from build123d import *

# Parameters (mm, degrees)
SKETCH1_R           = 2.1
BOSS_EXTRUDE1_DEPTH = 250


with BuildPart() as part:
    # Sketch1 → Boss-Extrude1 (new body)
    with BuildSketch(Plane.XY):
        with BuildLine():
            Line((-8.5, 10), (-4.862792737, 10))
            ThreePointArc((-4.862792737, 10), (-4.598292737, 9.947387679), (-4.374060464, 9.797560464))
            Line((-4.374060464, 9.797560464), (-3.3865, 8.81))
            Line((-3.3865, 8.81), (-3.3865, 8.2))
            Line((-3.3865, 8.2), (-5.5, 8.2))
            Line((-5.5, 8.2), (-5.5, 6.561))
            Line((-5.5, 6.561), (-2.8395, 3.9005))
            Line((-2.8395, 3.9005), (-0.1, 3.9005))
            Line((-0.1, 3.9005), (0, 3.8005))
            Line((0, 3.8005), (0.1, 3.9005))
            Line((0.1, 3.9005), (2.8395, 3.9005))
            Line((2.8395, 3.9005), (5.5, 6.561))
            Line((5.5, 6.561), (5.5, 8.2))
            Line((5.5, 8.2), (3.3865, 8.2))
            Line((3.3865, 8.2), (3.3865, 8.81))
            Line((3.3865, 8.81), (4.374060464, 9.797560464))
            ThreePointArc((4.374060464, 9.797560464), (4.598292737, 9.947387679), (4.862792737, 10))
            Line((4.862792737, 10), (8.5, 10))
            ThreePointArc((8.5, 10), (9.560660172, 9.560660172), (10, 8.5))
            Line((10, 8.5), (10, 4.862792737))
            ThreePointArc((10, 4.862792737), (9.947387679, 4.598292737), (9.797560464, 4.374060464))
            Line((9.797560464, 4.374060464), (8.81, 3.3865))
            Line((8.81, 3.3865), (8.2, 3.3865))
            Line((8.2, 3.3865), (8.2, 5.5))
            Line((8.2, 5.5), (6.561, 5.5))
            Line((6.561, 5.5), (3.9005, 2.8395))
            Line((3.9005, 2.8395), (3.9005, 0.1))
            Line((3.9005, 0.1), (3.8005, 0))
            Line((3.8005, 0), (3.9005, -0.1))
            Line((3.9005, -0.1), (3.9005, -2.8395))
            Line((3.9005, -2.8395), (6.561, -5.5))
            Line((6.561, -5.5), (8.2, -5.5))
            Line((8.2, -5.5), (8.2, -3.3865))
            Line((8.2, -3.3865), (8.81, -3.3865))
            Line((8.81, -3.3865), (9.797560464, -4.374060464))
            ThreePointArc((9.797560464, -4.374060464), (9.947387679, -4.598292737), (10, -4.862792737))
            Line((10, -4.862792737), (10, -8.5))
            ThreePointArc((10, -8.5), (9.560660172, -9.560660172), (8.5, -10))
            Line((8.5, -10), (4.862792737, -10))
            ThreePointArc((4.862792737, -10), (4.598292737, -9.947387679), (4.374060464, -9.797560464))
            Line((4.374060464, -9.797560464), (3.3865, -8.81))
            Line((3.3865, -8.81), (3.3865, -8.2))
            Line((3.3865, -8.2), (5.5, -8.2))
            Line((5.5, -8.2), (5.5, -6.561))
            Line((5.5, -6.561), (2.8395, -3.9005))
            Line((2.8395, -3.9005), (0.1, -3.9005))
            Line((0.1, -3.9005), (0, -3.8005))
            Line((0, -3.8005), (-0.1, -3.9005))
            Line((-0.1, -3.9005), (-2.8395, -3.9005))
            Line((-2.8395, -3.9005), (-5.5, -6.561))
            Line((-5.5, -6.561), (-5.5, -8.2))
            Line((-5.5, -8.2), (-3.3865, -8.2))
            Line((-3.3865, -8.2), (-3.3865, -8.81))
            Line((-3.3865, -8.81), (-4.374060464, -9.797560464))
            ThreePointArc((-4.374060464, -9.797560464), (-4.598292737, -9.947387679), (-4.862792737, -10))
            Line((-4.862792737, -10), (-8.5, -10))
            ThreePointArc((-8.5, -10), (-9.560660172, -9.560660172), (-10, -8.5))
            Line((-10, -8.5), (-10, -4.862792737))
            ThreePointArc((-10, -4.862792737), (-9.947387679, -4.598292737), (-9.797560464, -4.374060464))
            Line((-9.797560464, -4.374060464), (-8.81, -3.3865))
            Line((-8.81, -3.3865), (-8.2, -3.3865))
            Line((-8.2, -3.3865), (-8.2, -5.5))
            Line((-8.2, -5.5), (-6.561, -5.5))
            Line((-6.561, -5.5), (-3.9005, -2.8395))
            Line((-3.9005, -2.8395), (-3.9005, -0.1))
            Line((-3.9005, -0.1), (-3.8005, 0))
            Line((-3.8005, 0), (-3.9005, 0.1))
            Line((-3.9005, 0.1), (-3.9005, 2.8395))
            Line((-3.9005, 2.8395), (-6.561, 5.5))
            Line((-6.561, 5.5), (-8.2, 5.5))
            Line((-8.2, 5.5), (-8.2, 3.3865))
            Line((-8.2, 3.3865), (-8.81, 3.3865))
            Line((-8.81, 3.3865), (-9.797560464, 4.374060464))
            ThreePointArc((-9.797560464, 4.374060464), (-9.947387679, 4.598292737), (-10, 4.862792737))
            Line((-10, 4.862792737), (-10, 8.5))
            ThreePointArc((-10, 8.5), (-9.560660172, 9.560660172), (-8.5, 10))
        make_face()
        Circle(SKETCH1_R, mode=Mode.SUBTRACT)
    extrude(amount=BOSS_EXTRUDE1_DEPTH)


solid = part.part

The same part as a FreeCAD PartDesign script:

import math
import FreeCAD as App
import Part
import Sketcher
Q = App.Units.Quantity

doc = App.newDocument("Part")
params = doc.addObject("Spreadsheet::Sheet", "Params")
for row, (alias, value) in enumerate([
    ("sketch1_diameter", "4.2 mm"),
    ("sketch1_radius", "1.5 mm"),
    ("sketch1_width", "0.61 mm"),
    ("pad1_length", "250 mm"),
], start=1):
    params.set(f"A{row}", alias)
    params.set(f"B{row}", "=" + value)
    params.setAlias(f"B{row}", alias)

body = doc.addObject("PartDesign::Body", "Body")

sketch1 = doc.addObject("Sketcher::SketchObject", "Sketch")
body.addObject(sketch1)
sketch1.AttachmentSupport = (doc.XY_Plane, [""])
sketch1.MapMode = "FlatFace"
sketch1.addGeometry([
    Part.LineSegment(App.Vector(-4.86, 10, 0), App.Vector(-8.5, 10, 0)),
    Part.ArcOfCircle(Part.Circle(App.Vector(-8.5, 8.5, 0), App.Vector(0, 0, 1), 1.5), math.radians(90), math.radians(180)),
    Part.LineSegment(App.Vector(-10, 8.5, 0), App.Vector(-10, 4.86, 0)),
    Part.ArcOfCircle(Part.Circle(App.Vector(-9.31, 4.86, 0), App.Vector(0, 0, 1), 0.69), math.radians(180), math.radians(225)),
    Part.LineSegment(App.Vector(-9.8, 4.37, 0), App.Vector(-8.81, 3.39, 0)),
    Part.LineSegment(App.Vector(-8.81, 3.39, 0), App.Vector(-8.2, 3.39, 0)),
    Part.LineSegment(App.Vector(-8.2, 3.39, 0), App.Vector(-8.2, 5.5, 0)),
    Part.LineSegment(App.Vector(-8.2, 5.5, 0), App.Vector(-6.56, 5.5, 0)),
    Part.LineSegment(App.Vector(-6.56, 5.5, 0), App.Vector(-3.9, 2.84, 0)),
    Part.LineSegment(App.Vector(-3.9, 2.84, 0), App.Vector(-3.9, 0.1, 0)),
    Part.LineSegment(App.Vector(-3.9, 0.1, 0), App.Vector(-3.8, 0, 0)),
    Part.LineSegment(App.Vector(-3.8, 0, 0), App.Vector(-3.9, -0.1, 0)),
    Part.LineSegment(App.Vector(-3.9, -0.1, 0), App.Vector(-3.9, -2.84, 0)),
    Part.LineSegment(App.Vector(-3.9, -2.84, 0), App.Vector(-6.56, -5.5, 0)),
    Part.LineSegment(App.Vector(-6.56, -5.5, 0), App.Vector(-8.2, -5.5, 0)),
    Part.LineSegment(App.Vector(-8.2, -5.5, 0), App.Vector(-8.2, -3.39, 0)),
    Part.LineSegment(App.Vector(-8.2, -3.39, 0), App.Vector(-8.81, -3.39, 0)),
    Part.LineSegment(App.Vector(-8.81, -3.39, 0), App.Vector(-9.8, -4.37, 0)),
    Part.ArcOfCircle(Part.Circle(App.Vector(-9.31, -4.86, 0), App.Vector(0, 0, 1), 0.69), math.radians(135), math.radians(180)),
    Part.LineSegment(App.Vector(-10, -4.86, 0), App.Vector(-10, -8.5, 0)),
    Part.ArcOfCircle(Part.Circle(App.Vector(-8.5, -8.5, 0), App.Vector(0, 0, 1), 1.5), math.radians(180), math.radians(270)),
    Part.LineSegment(App.Vector(-8.5, -10, 0), App.Vector(-4.86, -10, 0)),
    Part.ArcOfCircle(Part.Circle(App.Vector(-4.86, -9.31, 0), App.Vector(0, 0, 1), 0.69), math.radians(-90), math.radians(-45)),
    Part.LineSegment(App.Vector(-4.37, -9.8, 0), App.Vector(-3.39, -8.81, 0)),
    Part.LineSegment(App.Vector(-3.39, -8.81, 0), App.Vector(-3.39, -8.2, 0)),
    Part.LineSegment(App.Vector(-3.39, -8.2, 0), App.Vector(-5.5, -8.2, 0)),
    Part.LineSegment(App.Vector(-5.5, -8.2, 0), App.Vector(-5.5, -6.56, 0)),
    Part.LineSegment(App.Vector(-5.5, -6.56, 0), App.Vector(-2.84, -3.9, 0)),
    Part.LineSegment(App.Vector(-2.84, -3.9, 0), App.Vector(-0.1, -3.9, 0)),
    Part.LineSegment(App.Vector(-0.1, -3.9, 0), App.Vector(0, -3.8, 0)),
    Part.LineSegment(App.Vector(0, -3.8, 0), App.Vector(0.1, -3.9, 0)),
    Part.LineSegment(App.Vector(0.1, -3.9, 0), App.Vector(2.84, -3.9, 0)),
    Part.LineSegment(App.Vector(2.84, -3.9, 0), App.Vector(5.5, -6.56, 0)),
    Part.LineSegment(App.Vector(5.5, -6.56, 0), App.Vector(5.5, -8.2, 0)),
    Part.LineSegment(App.Vector(5.5, -8.2, 0), App.Vector(3.39, -8.2, 0)),
    Part.LineSegment(App.Vector(3.39, -8.2, 0), App.Vector(3.39, -8.81, 0)),
    Part.LineSegment(App.Vector(3.39, -8.81, 0), App.Vector(4.37, -9.8, 0)),
    Part.ArcOfCircle(Part.Circle(App.Vector(4.86, -9.31, 0), App.Vector(0, 0, 1), 0.69), math.radians(-135), math.radians(-90)),
    Part.LineSegment(App.Vector(4.86, -10, 0), App.Vector(8.5, -10, 0)),
    Part.ArcOfCircle(Part.Circle(App.Vector(8.5, -8.5, 0), App.Vector(0, 0, 1), 1.5), math.radians(-90), math.radians(0)),
    Part.LineSegment(App.Vector(10, -8.5, 0), App.Vector(10, -4.86, 0)),
    Part.ArcOfCircle(Part.Circle(App.Vector(9.31, -4.86, 0), App.Vector(0, 0, 1), 0.69), math.radians(0), math.radians(45)),
    Part.LineSegment(App.Vector(9.8, -4.37, 0), App.Vector(8.81, -3.39, 0)),
    Part.LineSegment(App.Vector(8.81, -3.39, 0), App.Vector(8.2, -3.39, 0)),
    Part.LineSegment(App.Vector(8.2, -3.39, 0), App.Vector(8.2, -5.5, 0)),
    Part.LineSegment(App.Vector(8.2, -5.5, 0), App.Vector(6.56, -5.5, 0)),
    Part.LineSegment(App.Vector(6.56, -5.5, 0), App.Vector(3.9, -2.84, 0)),
    Part.LineSegment(App.Vector(3.9, -2.84, 0), App.Vector(3.9, -0.1, 0)),
    Part.LineSegment(App.Vector(3.9, -0.1, 0), App.Vector(3.8, 0, 0)),
    Part.LineSegment(App.Vector(3.8, 0, 0), App.Vector(3.9, 0.1, 0)),
    Part.LineSegment(App.Vector(3.9, 0.1, 0), App.Vector(3.9, 2.84, 0)),
    Part.LineSegment(App.Vector(3.9, 2.84, 0), App.Vector(6.56, 5.5, 0)),
    Part.LineSegment(App.Vector(6.56, 5.5, 0), App.Vector(8.2, 5.5, 0)),
    Part.LineSegment(App.Vector(8.2, 5.5, 0), App.Vector(8.2, 3.39, 0)),
    Part.LineSegment(App.Vector(8.2, 3.39, 0), App.Vector(8.81, 3.39, 0)),
    Part.LineSegment(App.Vector(8.81, 3.39, 0), App.Vector(9.8, 4.37, 0)),
    Part.ArcOfCircle(Part.Circle(App.Vector(9.31, 4.86, 0), App.Vector(0, 0, 1), 0.69), math.radians(-45), math.radians(0)),
    Part.LineSegment(App.Vector(10, 4.86, 0), App.Vector(10, 8.5, 0)),
    Part.ArcOfCircle(Part.Circle(App.Vector(8.5, 8.5, 0), App.Vector(0, 0, 1), 1.5), math.radians(0), math.radians(90)),
    Part.LineSegment(App.Vector(8.5, 10, 0), App.Vector(4.86, 10, 0)),
    Part.ArcOfCircle(Part.Circle(App.Vector(4.86, 9.31, 0), App.Vector(0, 0, 1), 0.69), math.radians(90), math.radians(135)),
    Part.LineSegment(App.Vector(4.37, 9.8, 0), App.Vector(3.39, 8.81, 0)),
    Part.LineSegment(App.Vector(3.39, 8.81, 0), App.Vector(3.39, 8.2, 0)),
    Part.LineSegment(App.Vector(3.39, 8.2, 0), App.Vector(5.5, 8.2, 0)),
    Part.LineSegment(App.Vector(5.5, 8.2, 0), App.Vector(5.5, 6.56, 0)),
    Part.LineSegment(App.Vector(5.5, 6.56, 0), App.Vector(2.84, 3.9, 0)),
    Part.LineSegment(App.Vector(2.84, 3.9, 0), App.Vector(0.1, 3.9, 0)),
    Part.LineSegment(App.Vector(0.1, 3.9, 0), App.Vector(0, 3.8, 0)),
    Part.LineSegment(App.Vector(0, 3.8, 0), App.Vector(-0.1, 3.9, 0)),
    Part.LineSegment(App.Vector(-0.1, 3.9, 0), App.Vector(-2.84, 3.9, 0)),
    Part.LineSegment(App.Vector(-2.84, 3.9, 0), App.Vector(-5.5, 6.56, 0)),
    Part.LineSegment(App.Vector(-5.5, 6.56, 0), App.Vector(-5.5, 8.2, 0)),
    Part.LineSegment(App.Vector(-5.5, 8.2, 0), App.Vector(-3.39, 8.2, 0)),
    Part.LineSegment(App.Vector(-3.39, 8.2, 0), App.Vector(-3.39, 8.81, 0)),
    Part.LineSegment(App.Vector(-3.39, 8.81, 0), App.Vector(-4.37, 9.8, 0)),
    Part.ArcOfCircle(Part.Circle(App.Vector(-4.86, 9.31, 0), App.Vector(0, 0, 1), 0.69), math.radians(45), math.radians(90)),
    Part.Circle(App.Vector(0, 0, 0), App.Vector(0, 0, 1), 2.1),
], False)
sketch1.addConstraint([
    Sketcher.Constraint("Tangent", 0, 2, 1, 1),
    Sketcher.Constraint("Tangent", 1, 2, 2, 1),
    Sketcher.Constraint("Tangent", 2, 2, 3, 1),
    Sketcher.Constraint("Tangent", 3, 2, 4, 1),
    Sketcher.Constraint("Coincident", 4, 2, 5, 1),
    Sketcher.Constraint("Coincident", 5, 2, 6, 1),
    Sketcher.Constraint("Coincident", 6, 2, 7, 1),
    Sketcher.Constraint("Coincident", 7, 2, 8, 1),
    Sketcher.Constraint("Coincident", 8, 2, 9, 1),
    Sketcher.Constraint("Coincident", 9, 2, 10, 1),
    Sketcher.Constraint("Coincident", 10, 2, 11, 1),
    Sketcher.Constraint("Coincident", 11, 2, 12, 1),
    Sketcher.Constraint("Coincident", 12, 2, 13, 1),
    Sketcher.Constraint("Coincident", 13, 2, 14, 1),
    Sketcher.Constraint("Coincident", 14, 2, 15, 1),
    Sketcher.Constraint("Coincident", 15, 2, 16, 1),
    Sketcher.Constraint("Coincident", 16, 2, 17, 1),
    Sketcher.Constraint("Tangent", 17, 2, 18, 1),
    Sketcher.Constraint("Tangent", 18, 2, 19, 1),
    Sketcher.Constraint("Tangent", 19, 2, 20, 1),
    Sketcher.Constraint("Tangent", 20, 2, 21, 1),
    Sketcher.Constraint("Tangent", 21, 2, 22, 1),
    Sketcher.Constraint("Tangent", 22, 2, 23, 1),
    Sketcher.Constraint("Coincident", 23, 2, 24, 1),
    Sketcher.Constraint("Coincident", 24, 2, 25, 1),
    Sketcher.Constraint("Coincident", 25, 2, 26, 1),
    Sketcher.Constraint("Coincident", 26, 2, 27, 1),
    Sketcher.Constraint("Coincident", 27, 2, 28, 1),
    Sketcher.Constraint("Coincident", 28, 2, 29, 1),
    Sketcher.Constraint("Coincident", 29, 2, 30, 1),
    Sketcher.Constraint("Coincident", 30, 2, 31, 1),
    Sketcher.Constraint("Coincident", 31, 2, 32, 1),
    Sketcher.Constraint("Coincident", 32, 2, 33, 1),
    Sketcher.Constraint("Coincident", 33, 2, 34, 1),
    Sketcher.Constraint("Coincident", 34, 2, 35, 1),
    Sketcher.Constraint("Coincident", 35, 2, 36, 1),
    Sketcher.Constraint("Tangent", 36, 2, 37, 1),
    Sketcher.Constraint("Tangent", 37, 2, 38, 1),
    Sketcher.Constraint("Tangent", 38, 2, 39, 1),
    Sketcher.Constraint("Tangent", 39, 2, 40, 1),
    Sketcher.Constraint("Tangent", 40, 2, 41, 1),
    Sketcher.Constraint("Tangent", 41, 2, 42, 1),
    Sketcher.Constraint("Coincident", 42, 2, 43, 1),
    Sketcher.Constraint("Coincident", 43, 2, 44, 1),
    Sketcher.Constraint("Coincident", 44, 2, 45, 1),
    Sketcher.Constraint("Coincident", 45, 2, 46, 1),
    Sketcher.Constraint("Coincident", 46, 2, 47, 1),
    Sketcher.Constraint("Coincident", 47, 2, 48, 1),
    Sketcher.Constraint("Coincident", 48, 2, 49, 1),
    Sketcher.Constraint("Coincident", 49, 2, 50, 1),
    Sketcher.Constraint("Coincident", 50, 2, 51, 1),
    Sketcher.Constraint("Coincident", 51, 2, 52, 1),
    Sketcher.Constraint("Coincident", 52, 2, 53, 1),
    Sketcher.Constraint("Coincident", 53, 2, 54, 1),
    Sketcher.Constraint("Coincident", 54, 2, 55, 1),
    Sketcher.Constraint("Tangent", 55, 2, 56, 1),
    Sketcher.Constraint("Tangent", 56, 2, 57, 1),
    Sketcher.Constraint("Tangent", 57, 2, 58, 1),
    Sketcher.Constraint("Tangent", 58, 2, 59, 1),
    Sketcher.Constraint("Tangent", 59, 2, 60, 1),
    Sketcher.Constraint("Tangent", 60, 2, 61, 1),
    Sketcher.Constraint("Coincident", 61, 2, 62, 1),
    Sketcher.Constraint("Coincident", 62, 2, 63, 1),
    Sketcher.Constraint("Coincident", 63, 2, 64, 1),
    Sketcher.Constraint("Coincident", 64, 2, 65, 1),
    Sketcher.Constraint("Coincident", 65, 2, 66, 1),
    Sketcher.Constraint("Coincident", 66, 2, 67, 1),
    Sketcher.Constraint("Coincident", 67, 2, 68, 1),
    Sketcher.Constraint("Coincident", 68, 2, 69, 1),
    Sketcher.Constraint("Coincident", 69, 2, 70, 1),
    Sketcher.Constraint("Coincident", 70, 2, 71, 1),
    Sketcher.Constraint("Coincident", 71, 2, 72, 1),
    Sketcher.Constraint("Coincident", 72, 2, 73, 1),
    Sketcher.Constraint("Coincident", 73, 2, 74, 1),
    Sketcher.Constraint("Tangent", 74, 2, 75, 1),
    Sketcher.Constraint("Tangent", 75, 2, 0, 1),
    Sketcher.Constraint("Horizontal", 0),
    Sketcher.Constraint("Vertical", 2),
    Sketcher.Constraint("Horizontal", 5),
    Sketcher.Constraint("Vertical", 6),
    Sketcher.Constraint("Horizontal", 7),
    Sketcher.Constraint("Vertical", 9),
    Sketcher.Constraint("Vertical", 12),
    Sketcher.Constraint("Horizontal", 14),
    Sketcher.Constraint("Vertical", 15),
    Sketcher.Constraint("Horizontal", 16),
    Sketcher.Constraint("Vertical", 19),
    Sketcher.Constraint("Horizontal", 21),
    Sketcher.Constraint("Vertical", 24),
    Sketcher.Constraint("Horizontal", 25),
    Sketcher.Constraint("Vertical", 26),
    Sketcher.Constraint("Horizontal", 28),
    Sketcher.Constraint("Horizontal", 31),
    Sketcher.Constraint("Vertical", 33),
    Sketcher.Constraint("Horizontal", 34),
    Sketcher.Constraint("Vertical", 35),
    Sketcher.Constraint("Horizontal", 38),
    Sketcher.Constraint("Vertical", 40),
    Sketcher.Constraint("Horizontal", 43),
    Sketcher.Constraint("Vertical", 44),
    Sketcher.Constraint("Horizontal", 45),
    Sketcher.Constraint("Vertical", 47),
    Sketcher.Constraint("Vertical", 50),
    Sketcher.Constraint("Horizontal", 52),
    Sketcher.Constraint("Vertical", 53),
    Sketcher.Constraint("Horizontal", 54),
    Sketcher.Constraint("Vertical", 57),
    Sketcher.Constraint("Horizontal", 59),
    Sketcher.Constraint("Vertical", 62),
    Sketcher.Constraint("Horizontal", 63),
    Sketcher.Constraint("Vertical", 64),
    Sketcher.Constraint("Horizontal", 66),
    Sketcher.Constraint("Horizontal", 69),
    Sketcher.Constraint("Vertical", 71),
    Sketcher.Constraint("Horizontal", 72),
    Sketcher.Constraint("Vertical", 73),
    Sketcher.Constraint("Coincident", 76, 3, -1, 1),
    Sketcher.Constraint("Equal", 3, 18),
    Sketcher.Constraint("Equal", 1, 20),
    Sketcher.Constraint("Equal", 18, 22),
    Sketcher.Constraint("Equal", 22, 37),
    Sketcher.Constraint("Equal", 20, 39),
    Sketcher.Constraint("Equal", 37, 41),
    Sketcher.Constraint("Equal", 41, 56),
    Sketcher.Constraint("Equal", 39, 58),
    Sketcher.Constraint("Equal", 56, 60),
    Sketcher.Constraint("Equal", 60, 75),
    Sketcher.Constraint("Symmetric", 1, 3, 39, 3, -1, 1),
    Sketcher.Constraint("Symmetric", 18, 3, 56, 3, -1, 1),
    Sketcher.Constraint("Symmetric", 22, 3, 60, 3, -1, 1),
    Sketcher.Constraint("Symmetric", 3, 2, 41, 2, -1, 1),
    Sketcher.Constraint("Symmetric", 5, 2, 43, 2, -1, 1),
    Sketcher.Constraint("Symmetric", 7, 2, 45, 2, -1, 1),
    Sketcher.Constraint("Symmetric", 8, 2, 46, 2, -1, 1),
    Sketcher.Constraint("Symmetric", 10, 2, 48, 2, -1, 1),
    Sketcher.Constraint("Symmetric", 11, 2, 49, 2, -1, 1),
    Sketcher.Constraint("Symmetric", 13, 2, 51, 2, -1, 1),
    Sketcher.Constraint("Symmetric", 15, 2, 53, 2, -1, 1),
    Sketcher.Constraint("Symmetric", 23, 2, 61, 2, -1, 1),
    Sketcher.Constraint("Symmetric", 25, 2, 63, 2, -1, 1),
    Sketcher.Constraint("Symmetric", 27, 2, 65, 2, -1, 1),
    Sketcher.Constraint("Symmetric", 29, 2, 67, 2, -1, 1),
    Sketcher.Constraint("Symmetric", 30, 2, 68, 2, -1, 1),
    Sketcher.Constraint("Symmetric", 32, 2, 70, 2, -1, 1),
    Sketcher.Constraint("Symmetric", 34, 2, 72, 2, -1, 1),
    Sketcher.Constraint("Symmetric", 36, 2, 74, 2, -1, 1),
    Sketcher.Constraint("Symmetric", 22, 3, 37, 3, -2),
    Sketcher.Constraint("Symmetric", 18, 3, 41, 3, -2),
    Sketcher.Constraint("Symmetric", 28, 2, 30, 2, -2),
    Sketcher.Constraint("Symmetric", 26, 2, 32, 2, -2),
    Sketcher.Constraint("Symmetric", 24, 2, 34, 2, -2),
    Sketcher.Constraint("Symmetric", 16, 2, 42, 2, -2),
    Sketcher.Constraint("Symmetric", 14, 2, 44, 2, -2),
    Sketcher.Constraint("Symmetric", 12, 2, 46, 2, -2),
    Sketcher.Constraint("PointOnObject", 10, 2, -1),
    Sketcher.Constraint("PointOnObject", 29, 2, -2),
    Sketcher.Constraint("Parallel", 4, 8),
    Sketcher.Constraint("Parallel", 8, 10),
    Sketcher.Constraint("Perpendicular", 10, 11),
    Sketcher.Constraint("Parallel", 11, 13),
    Sketcher.Constraint("Parallel", 13, 17),
    Sketcher.Constraint("Parallel", 17, 23),
    Sketcher.Constraint("Parallel", 23, 27),
    Sketcher.Constraint("Parallel", 27, 29),
    Sketcher.Constraint("Parallel", 30, 32),
    Sketcher.Constraint("Parallel", 32, 36),
    Sketcher.Constraint("Parallel", 46, 48),
    Sketcher.Constraint("Parallel", 49, 51),
    Sketcher.Constraint("Parallel", 51, 55),
    Sketcher.Constraint("Parallel", 61, 65),
    Sketcher.Constraint("Parallel", 65, 67),
    Sketcher.Constraint("Parallel", 68, 70),
    Sketcher.Constraint("Equal", 59, 2),
    Sketcher.Constraint("Equal", 72, 6),
    Sketcher.Constraint("Equal", 69, 9),
    Sketcher.Constraint("Equal", 54, 24),
    Sketcher.Constraint("Equal", 52, 26),
    Sketcher.Constraint("Equal", 17, 23),
    Sketcher.Constraint("Equal", 13, 27),
    Sketcher.Constraint("Equal", 11, 29),
    Sketcher.Constraint("Diameter", 76, Q("4.2 mm")),
    Sketcher.Constraint("Radius", 1, Q("1.5 mm")),
    Sketcher.Constraint("DistanceY", -1, 1, 0, 2, Q("10 mm")),
    Sketcher.Constraint("DistanceX", 5, 1, 5, 2, Q("0.61 mm")),
    Sketcher.Constraint("DistanceX", 5, 2, -1, 1, Q("8.2 mm")),
    Sketcher.Constraint("DistanceY", -1, 1, 6, 2, Q("5.5 mm")),
    Sketcher.Constraint("DistanceY", -1, 1, 9, 2, Q("0.1 mm")),
    Sketcher.Constraint("DistanceX", 7, 1, 7, 2, Q("1.639 mm")),
    Sketcher.Constraint("Radius", 3, Q("0.691172 mm")),
    Sketcher.Constraint("DistanceX", 25, 2, 25, 1, Q("2.1135 mm")),
    Sketcher.Constraint("DistanceX", 28, 1, 28, 2, Q("2.7395 mm")),
])
sketch1.setExpression("Constraints[180]", "Params.sketch1_diameter")
sketch1.setExpression("Constraints[181]", "Params.sketch1_radius")
sketch1.setExpression("Constraints[183]", "Params.sketch1_width")
pad1 = doc.addObject("PartDesign::Pad", "Pad")
body.addObject(pad1)
pad1.Profile = sketch1
pad1.setExpression("Length", "Params.pad1_length")

doc.recompute()
